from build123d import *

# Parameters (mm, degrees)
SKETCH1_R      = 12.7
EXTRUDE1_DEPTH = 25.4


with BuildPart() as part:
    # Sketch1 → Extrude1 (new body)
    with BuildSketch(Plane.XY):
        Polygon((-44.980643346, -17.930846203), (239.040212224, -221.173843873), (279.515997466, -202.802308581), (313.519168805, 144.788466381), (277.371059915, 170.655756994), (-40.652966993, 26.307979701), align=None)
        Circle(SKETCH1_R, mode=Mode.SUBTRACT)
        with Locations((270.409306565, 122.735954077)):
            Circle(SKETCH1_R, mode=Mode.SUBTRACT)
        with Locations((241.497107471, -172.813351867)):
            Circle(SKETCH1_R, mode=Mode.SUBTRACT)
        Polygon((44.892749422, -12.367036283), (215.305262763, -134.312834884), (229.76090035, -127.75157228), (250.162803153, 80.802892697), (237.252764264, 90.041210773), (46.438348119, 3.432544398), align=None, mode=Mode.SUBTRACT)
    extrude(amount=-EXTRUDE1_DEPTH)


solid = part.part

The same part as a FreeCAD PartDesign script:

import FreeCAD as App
import Part
import Sketcher
from FreeCAD import Vector
Q = App.Units.Quantity

doc = App.newDocument("Part")
body = doc.addObject("PartDesign::Body", "Body")

# Sketch on XY plane
sketch1 = body.newObject("Sketcher::SketchObject", "Sketch")
sketch1.AttachmentSupport = (doc.getObject("XY_Plane"), [""])
sketch1.MapMode = "FlatFace"
sketch1.addGeometry([
    Part.LineSegment(Vector(-45, -18, 0), Vector(239, -221, 0)),  # 0
    Part.LineSegment(Vector(239, -221, 0), Vector(280, -203, 0)),  # 1
    Part.LineSegment(Vector(280, -203, 0), Vector(314, 145, 0)),  # 2
    Part.LineSegment(Vector(314, 145, 0), Vector(277, 171, 0)),  # 3
    Part.LineSegment(Vector(277, 171, 0), Vector(-41, 26, 0)),  # 4
    Part.LineSegment(Vector(-41, 26, 0), Vector(-45, -18, 0)),  # 5
    Part.Circle(Vector(241, -173, 0), Vector(0, 0, 1), 13),  # 6
    Part.Circle(Vector(0, 0, 0), Vector(0, 0, 1), 13),  # 7
    Part.LineSegment(Vector(215, -134, 0), Vector(45, -12, 0)),  # 8
    Part.LineSegment(Vector(45, -12, 0), Vector(46, 3, 0)),  # 9
    Part.LineSegment(Vector(46, 3, 0), Vector(237, 90, 0)),  # 10
    Part.LineSegment(Vector(237, 90, 0), Vector(250, 81, 0)),  # 11
    Part.LineSegment(Vector(250, 81, 0), Vector(230, -128, 0)),  # 12
    Part.LineSegment(Vector(230, -128, 0), Vector(215, -134, 0)),  # 13
    Part.Circle(Vector(270, 123, 0), Vector(0, 0, 1), 13),  # 14
], False)
sketch1.addConstraint([
    Sketcher.Constraint("Coincident", 0, 2, 1, 1),
    Sketcher.Constraint("Coincident", 1, 2, 2, 1),
    Sketcher.Constraint("Coincident", 2, 2, 3, 1),
    Sketcher.Constraint("Coincident", 3, 2, 4, 1),
    Sketcher.Constraint("Coincident", 4, 2, 5, 1),
    Sketcher.Constraint("Coincident", 5, 2, 0, 1),
    Sketcher.Constraint("Coincident", 8, 2, 9, 1),
    Sketcher.Constraint("Coincident", 9, 2, 10, 1),
    Sketcher.Constraint("Coincident", 10, 2, 11, 1),
    Sketcher.Constraint("Coincident", 11, 2, 12, 1),
    Sketcher.Constraint("Coincident", 12, 2, 13, 1),
    Sketcher.Constraint("Coincident", 13, 2, 8, 1),
    Sketcher.Constraint("Coincident", 7, 3, -1, 1),
    Sketcher.Constraint("Equal", 6, 7),
    Sketcher.Constraint("Equal", 7, 14),
    Sketcher.Constraint("Parallel", 0, 3),
    Sketcher.Constraint("Parallel", 1, 4),
    Sketcher.Constraint("Parallel", 2, 5),
    Sketcher.Constraint("Parallel", 3, 8),
    Sketcher.Constraint("Parallel", 5, 9),
    Sketcher.Constraint("Parallel", 4, 10),
    Sketcher.Constraint("Parallel", 8, 11),
    Sketcher.Constraint("Parallel", 9, 12),
    Sketcher.Constraint("Parallel", 10, 13),
    Sketcher.Constraint("Equal", 0, 2),
    Sketcher.Constraint("Equal", 1, 3),
    Sketcher.Constraint("Equal", 2, 4),
    Sketcher.Constraint("Equal", 3, 5),
    Sketcher.Constraint("Equal", 8, 10),
    Sketcher.Constraint("Equal", 9, 11),
    Sketcher.Constraint("Diameter", 6, Q("1 in")),
    Sketcher.Constraint("Distance", 0, Q("13.75 in")),
    Sketcher.Constraint("Distance", 1, Q("1.75 in")),
    Sketcher.Constraint("Distance", 8, Q("8.25 in")),
    Sketcher.Constraint("Distance", 9, Q("0.625 in")),
    Sketcher.Constraint("DistanceX", -1, 1, 12, 2, 229.7609),
    Sketcher.Constraint("DistanceX", 6, 3, 14, 3, 28.912199),
    Sketcher.Constraint("DistanceY", 5, 2, 14, 3, 140.6668),
    Sketcher.Constraint("DistanceX", 8, 2, 9, 2, 1.545599),
    Sketcher.Constraint("DistanceY", 6, 3, -1, 1, 172.813352),
    Sketcher.Constraint("DistanceY", 1, 2, -1, 1, 202.802309),
    Sketcher.Constraint("DistanceX", -1, 1, 2, 2, 313.519169),
    Sketcher.Constraint("DistanceY", -1, 1, 10, 2, 90.041211),
    Sketcher.Constraint("DistanceX", 6, 3, 1, 2, 38.01889),
])
pad1 = body.newObject("PartDesign::Pad", "Pad")
pad1.Profile = sketch1
pad1.Length = Q("1 in")
pad1.Reversed = True

doc.recompute()
